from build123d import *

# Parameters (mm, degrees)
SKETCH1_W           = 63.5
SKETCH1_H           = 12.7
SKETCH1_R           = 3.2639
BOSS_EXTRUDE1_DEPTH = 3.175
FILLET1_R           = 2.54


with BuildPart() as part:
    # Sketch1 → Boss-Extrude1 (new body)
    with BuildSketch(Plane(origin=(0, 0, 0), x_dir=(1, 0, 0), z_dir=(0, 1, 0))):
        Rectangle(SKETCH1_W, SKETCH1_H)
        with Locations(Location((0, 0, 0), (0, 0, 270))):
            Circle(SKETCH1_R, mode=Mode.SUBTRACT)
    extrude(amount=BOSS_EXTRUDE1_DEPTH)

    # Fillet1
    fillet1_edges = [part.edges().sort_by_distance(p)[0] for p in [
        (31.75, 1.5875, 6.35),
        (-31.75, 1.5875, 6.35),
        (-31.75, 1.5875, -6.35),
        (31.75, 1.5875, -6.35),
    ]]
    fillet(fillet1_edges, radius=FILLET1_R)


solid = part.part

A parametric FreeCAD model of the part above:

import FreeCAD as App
import Part
import Sketcher
Q = App.Units.Quantity


def edges_at(feature, points):
    """Names of the edges that pass closest to the given points."""
    edges = feature.Shape.Edges
    near = lambda p: min(range(len(edges)), key=lambda i: edges[i].distToShape(Part.Vertex(*p))[0])
    return sorted({f"Edge{near(p) + 1}" for p in points})


def add_polygon(sketch, points):
    """Adds a closed chain of lines whose ends are joined by coincident constraints."""
    first, n = sketch.GeometryCount, len(points)
    for a, b in zip(points, points[1:] + points[:1]):
        sketch.addGeometry(Part.LineSegment(App.Vector(*a, 0), App.Vector(*b, 0)), False)
    for i in range(n):
        sketch.addConstraint(Sketcher.Constraint("Coincident", first + i, 2, first + (i + 1) % n, 1))

doc = App.newDocument("Part")
body = doc.addObject("PartDesign::Body", "Body")

sketch1 = body.newObject("Sketcher::SketchObject", "Sketch")
sketch1.AttachmentSupport = (doc.getObject("XZ_Plane"), [""])
sketch1.MapMode = "FlatFace"
add_polygon(sketch1, [(-31.8, -6.3), (-31.8, 6.3), (31.8, 6.3), (31.8, -6.3)])
sketch1.addGeometry(Part.Circle(App.Vector(0, 0, 0), App.Vector(0, 0, 1), 3.3), False)
sketch1.addConstraint([
    Sketcher.Constraint("Vertical", 0),
    Sketcher.Constraint("Horizontal", 1),
    Sketcher.Constraint("Vertical", 2),
    Sketcher.Constraint("Horizontal", 3),
    Sketcher.Constraint("Coincident", 4, 3, -1, 1),
    Sketcher.Constraint("Symmetric", 0, 2, 2, 2, -1, 1),
    Sketcher.Constraint("Diameter", 4, Q("0.257 in")),
    Sketcher.Constraint("DistanceX", 1, 1, 1, 2, Q("2.5 in")),
    Sketcher.Constraint("DistanceY", 0, 1, 0, 2, Q("0.5 in")),
])
pad1 = body.newObject("PartDesign::Pad", "Pad")
pad1.Profile = sketch1
pad1.Length = Q("0.125 in")
pad1.Reversed = True
doc.recompute()

fillet = body.newObject("PartDesign::Fillet", "Fillet")
fillet.Base = (pad1, edges_at(pad1, [
    (31.75, 1.587, 6.35),
    (-31.75, 1.587, 6.35),
    (-31.75, 1.587, -6.35),
    (31.75, 1.587, -6.35),
]))
fillet.Radius = Q("0.1 in")

doc.recompute()
